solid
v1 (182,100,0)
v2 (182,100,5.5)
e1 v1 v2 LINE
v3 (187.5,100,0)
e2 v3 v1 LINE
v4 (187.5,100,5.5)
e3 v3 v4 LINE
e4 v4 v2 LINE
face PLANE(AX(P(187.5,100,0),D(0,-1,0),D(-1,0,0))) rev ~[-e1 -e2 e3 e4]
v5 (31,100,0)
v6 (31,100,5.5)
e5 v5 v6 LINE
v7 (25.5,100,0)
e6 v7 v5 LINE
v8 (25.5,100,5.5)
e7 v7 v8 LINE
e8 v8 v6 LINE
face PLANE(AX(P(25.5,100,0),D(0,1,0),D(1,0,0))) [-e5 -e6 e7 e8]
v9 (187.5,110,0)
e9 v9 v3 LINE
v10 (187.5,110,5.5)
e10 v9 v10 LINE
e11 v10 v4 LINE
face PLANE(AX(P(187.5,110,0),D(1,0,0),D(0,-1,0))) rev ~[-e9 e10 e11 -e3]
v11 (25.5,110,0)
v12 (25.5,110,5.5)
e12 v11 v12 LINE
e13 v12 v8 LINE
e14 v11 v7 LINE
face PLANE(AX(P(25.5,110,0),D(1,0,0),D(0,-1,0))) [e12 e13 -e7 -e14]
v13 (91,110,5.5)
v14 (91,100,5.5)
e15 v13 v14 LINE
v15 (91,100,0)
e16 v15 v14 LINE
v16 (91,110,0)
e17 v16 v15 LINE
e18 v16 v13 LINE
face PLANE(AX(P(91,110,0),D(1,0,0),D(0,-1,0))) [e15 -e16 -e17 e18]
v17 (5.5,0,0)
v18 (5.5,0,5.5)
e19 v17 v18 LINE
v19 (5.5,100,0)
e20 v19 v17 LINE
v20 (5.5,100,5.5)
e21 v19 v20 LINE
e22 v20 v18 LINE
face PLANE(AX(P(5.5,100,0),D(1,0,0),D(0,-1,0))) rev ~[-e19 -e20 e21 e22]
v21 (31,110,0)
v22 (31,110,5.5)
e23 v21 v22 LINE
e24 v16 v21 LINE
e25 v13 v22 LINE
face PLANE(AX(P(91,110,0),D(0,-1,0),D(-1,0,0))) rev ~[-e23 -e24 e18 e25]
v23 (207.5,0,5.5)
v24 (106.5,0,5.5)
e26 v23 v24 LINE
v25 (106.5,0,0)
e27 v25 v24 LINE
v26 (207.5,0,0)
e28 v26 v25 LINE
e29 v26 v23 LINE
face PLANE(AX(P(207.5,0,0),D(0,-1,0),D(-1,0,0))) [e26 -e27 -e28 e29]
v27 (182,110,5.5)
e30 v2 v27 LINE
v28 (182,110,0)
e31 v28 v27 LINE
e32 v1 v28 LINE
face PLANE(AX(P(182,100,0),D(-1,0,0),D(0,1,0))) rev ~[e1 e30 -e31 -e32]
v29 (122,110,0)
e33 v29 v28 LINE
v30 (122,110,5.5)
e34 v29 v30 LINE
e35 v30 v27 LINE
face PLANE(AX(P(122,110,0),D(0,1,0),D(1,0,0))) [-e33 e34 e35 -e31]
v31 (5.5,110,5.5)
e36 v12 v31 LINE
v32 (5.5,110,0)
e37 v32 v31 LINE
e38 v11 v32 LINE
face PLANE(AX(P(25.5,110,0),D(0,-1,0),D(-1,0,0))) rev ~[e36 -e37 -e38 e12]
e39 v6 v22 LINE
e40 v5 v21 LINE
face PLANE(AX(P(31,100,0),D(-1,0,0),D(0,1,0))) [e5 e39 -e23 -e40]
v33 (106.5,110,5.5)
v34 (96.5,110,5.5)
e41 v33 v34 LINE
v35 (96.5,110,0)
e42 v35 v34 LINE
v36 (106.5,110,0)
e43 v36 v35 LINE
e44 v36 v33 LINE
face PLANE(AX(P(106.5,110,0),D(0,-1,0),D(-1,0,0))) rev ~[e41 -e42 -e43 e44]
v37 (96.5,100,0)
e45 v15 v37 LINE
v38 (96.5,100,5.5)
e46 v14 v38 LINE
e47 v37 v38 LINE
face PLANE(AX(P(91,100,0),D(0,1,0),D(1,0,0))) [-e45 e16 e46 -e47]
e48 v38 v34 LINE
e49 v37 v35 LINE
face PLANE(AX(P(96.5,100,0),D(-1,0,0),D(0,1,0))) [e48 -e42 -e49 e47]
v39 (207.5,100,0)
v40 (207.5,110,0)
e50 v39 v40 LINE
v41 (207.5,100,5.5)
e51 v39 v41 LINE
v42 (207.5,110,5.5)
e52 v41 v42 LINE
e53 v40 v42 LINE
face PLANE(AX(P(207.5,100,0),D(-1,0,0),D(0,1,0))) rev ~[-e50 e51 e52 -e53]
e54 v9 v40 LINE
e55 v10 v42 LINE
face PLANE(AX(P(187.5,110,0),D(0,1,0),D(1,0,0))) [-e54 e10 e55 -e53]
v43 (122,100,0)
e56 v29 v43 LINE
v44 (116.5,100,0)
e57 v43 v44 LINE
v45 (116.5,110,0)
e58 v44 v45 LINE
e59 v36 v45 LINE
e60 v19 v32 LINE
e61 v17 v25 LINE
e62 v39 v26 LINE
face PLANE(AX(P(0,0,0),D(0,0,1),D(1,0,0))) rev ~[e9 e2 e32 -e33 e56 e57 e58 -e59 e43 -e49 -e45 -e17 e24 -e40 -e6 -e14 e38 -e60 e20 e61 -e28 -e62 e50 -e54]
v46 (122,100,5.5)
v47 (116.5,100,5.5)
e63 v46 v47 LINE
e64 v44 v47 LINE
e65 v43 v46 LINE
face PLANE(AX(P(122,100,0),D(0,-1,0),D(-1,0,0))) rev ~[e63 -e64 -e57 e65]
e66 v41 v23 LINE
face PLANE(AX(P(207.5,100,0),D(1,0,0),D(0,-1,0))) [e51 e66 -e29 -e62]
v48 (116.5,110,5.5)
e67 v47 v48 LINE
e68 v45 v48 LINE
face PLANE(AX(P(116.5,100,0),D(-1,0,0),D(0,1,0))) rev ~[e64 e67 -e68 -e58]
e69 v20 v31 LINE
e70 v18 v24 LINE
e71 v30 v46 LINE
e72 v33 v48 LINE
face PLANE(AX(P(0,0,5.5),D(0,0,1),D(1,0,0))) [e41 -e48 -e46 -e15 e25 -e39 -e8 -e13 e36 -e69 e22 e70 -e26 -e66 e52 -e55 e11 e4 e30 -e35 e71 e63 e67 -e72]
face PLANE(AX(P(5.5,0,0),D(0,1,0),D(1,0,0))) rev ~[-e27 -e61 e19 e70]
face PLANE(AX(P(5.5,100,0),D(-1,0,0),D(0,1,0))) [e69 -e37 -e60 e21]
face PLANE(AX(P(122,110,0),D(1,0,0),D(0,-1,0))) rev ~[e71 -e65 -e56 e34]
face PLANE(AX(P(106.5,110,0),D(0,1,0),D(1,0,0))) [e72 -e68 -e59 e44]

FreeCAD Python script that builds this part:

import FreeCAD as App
import Part
import Sketcher


def add_polygon(sketch, points):
    """Adds a closed chain of lines whose ends are joined by coincident constraints."""
    first, n = sketch.GeometryCount, len(points)
    for a, b in zip(points, points[1:] + points[:1]):
        sketch.addGeometry(Part.LineSegment(App.Vector(*a, 0), App.Vector(*b, 0)), False)
    for i in range(n):
        sketch.addConstraint(Sketcher.Constraint("Coincident", first + i, 2, first + (i + 1) % n, 1))

doc = App.newDocument("Part")
body = doc.addObject("PartDesign::Body", "Body")

# Sketch on XY plane
sketch1 = body.newObject("Sketcher::SketchObject", "Sketch")
sketch1.AttachmentSupport = (doc.getObject("XY_Plane"), [""])
sketch1.MapMode = "FlatFace"
add_polygon(sketch1, [(6, 110), (6, 0), (208, 0), (208, 110), (188, 110), (188, 100), (182, 100), (182, 110), (122, 110), (122, 100), (116, 100), (116, 110), (96, 110), (96, 100), (91, 100), (91, 110), (31, 110), (31, 100), (26, 100), (26, 110)])  # lines 0-19
sketch1.addConstraint(Sketcher.Constraint("Vertical", 0))
sketch1.addConstraint(Sketcher.Constraint("Horizontal", 1))
sketch1.addConstraint(Sketcher.Constraint("Vertical", 2))
sketch1.addConstraint(Sketcher.Constraint("Horizontal", 3))
sketch1.addConstraint(Sketcher.Constraint("Vertical", 4))
sketch1.addConstraint(Sketcher.Constraint("Horizontal", 5))
sketch1.addConstraint(Sketcher.Constraint("Vertical", 6))
sketch1.addConstraint(Sketcher.Constraint("Horizontal", 7))
sketch1.addConstraint(Sketcher.Constraint("Vertical", 8))
sketch1.addConstraint(Sketcher.Constraint("Horizontal", 9))
sketch1.addConstraint(Sketcher.Constraint("Vertical", 10))
sketch1.addConstraint(Sketcher.Constraint("Horizontal", 11))
sketch1.addConstraint(Sketcher.Constraint("Vertical", 12))
sketch1.addConstraint(Sketcher.Constraint("Horizontal", 13))
sketch1.addConstraint(Sketcher.Constraint("Vertical", 14))
sketch1.addConstraint(Sketcher.Constraint("Horizontal", 15))
sketch1.addConstraint(Sketcher.Constraint("Vertical", 16))
sketch1.addConstraint(Sketcher.Constraint("Horizontal", 17))
sketch1.addConstraint(Sketcher.Constraint("Vertical", 18))
sketch1.addConstraint(Sketcher.Constraint("Horizontal", 19))
sketch1.addConstraint(Sketcher.Constraint("PointOnObject", 0, 2, -1))
sketch1.addConstraint(Sketcher.Constraint("Horizontal", 3, 2, 6, 2))
sketch1.addConstraint(Sketcher.Constraint("Horizontal", 5, 2, 8, 2))
sketch1.addConstraint(Sketcher.Constraint("Horizontal", 7, 2, 10, 2))
sketch1.addConstraint(Sketcher.Constraint("Horizontal", 9, 2, 12, 2))
sketch1.addConstraint(Sketcher.Constraint("Horizontal", 11, 2, 14, 2))
sketch1.addConstraint(Sketcher.Constraint("Horizontal", 13, 2, 16, 2))
sketch1.addConstraint(Sketcher.Constraint("Horizontal", 15, 2, 18, 2))
sketch1.addConstraint(Sketcher.Constraint("Equal", 5, 9))
sketch1.addConstraint(Sketcher.Constraint("Equal", 3, 11))
sketch1.addConstraint(Sketcher.Constraint("Equal", 9, 13))
sketch1.addConstraint(Sketcher.Constraint("Equal", 7, 15))
sketch1.addConstraint(Sketcher.Constraint("Equal", 13, 17))
sketch1.addConstraint(Sketcher.Constraint("Equal", 11, 19))
sketch1.addConstraint(Sketcher.Constraint("DistanceX", 3, 2, 3, 1, 20.0))
sketch1.addConstraint(Sketcher.Constraint("DistanceY", 4, 2, 4, 1, 10.0))
sketch1.addConstraint(Sketcher.Constraint("DistanceX", 5, 2, 5, 1, 5.5))
sketch1.addConstraint(Sketcher.Constraint("DistanceY", -1, 1, 4, 2, 100.0))
sketch1.addConstraint(Sketcher.Constraint("DistanceX", -1, 1, 0, 2, 5.5))
sketch1.addConstraint(Sketcher.Constraint("DistanceX", 1, 1, 1, 2, 202.0))
pad1 = body.newObject("PartDesign::Pad", "Pad")
pad1.Profile = sketch1
pad1.Length = 5.5

doc.recompute()
